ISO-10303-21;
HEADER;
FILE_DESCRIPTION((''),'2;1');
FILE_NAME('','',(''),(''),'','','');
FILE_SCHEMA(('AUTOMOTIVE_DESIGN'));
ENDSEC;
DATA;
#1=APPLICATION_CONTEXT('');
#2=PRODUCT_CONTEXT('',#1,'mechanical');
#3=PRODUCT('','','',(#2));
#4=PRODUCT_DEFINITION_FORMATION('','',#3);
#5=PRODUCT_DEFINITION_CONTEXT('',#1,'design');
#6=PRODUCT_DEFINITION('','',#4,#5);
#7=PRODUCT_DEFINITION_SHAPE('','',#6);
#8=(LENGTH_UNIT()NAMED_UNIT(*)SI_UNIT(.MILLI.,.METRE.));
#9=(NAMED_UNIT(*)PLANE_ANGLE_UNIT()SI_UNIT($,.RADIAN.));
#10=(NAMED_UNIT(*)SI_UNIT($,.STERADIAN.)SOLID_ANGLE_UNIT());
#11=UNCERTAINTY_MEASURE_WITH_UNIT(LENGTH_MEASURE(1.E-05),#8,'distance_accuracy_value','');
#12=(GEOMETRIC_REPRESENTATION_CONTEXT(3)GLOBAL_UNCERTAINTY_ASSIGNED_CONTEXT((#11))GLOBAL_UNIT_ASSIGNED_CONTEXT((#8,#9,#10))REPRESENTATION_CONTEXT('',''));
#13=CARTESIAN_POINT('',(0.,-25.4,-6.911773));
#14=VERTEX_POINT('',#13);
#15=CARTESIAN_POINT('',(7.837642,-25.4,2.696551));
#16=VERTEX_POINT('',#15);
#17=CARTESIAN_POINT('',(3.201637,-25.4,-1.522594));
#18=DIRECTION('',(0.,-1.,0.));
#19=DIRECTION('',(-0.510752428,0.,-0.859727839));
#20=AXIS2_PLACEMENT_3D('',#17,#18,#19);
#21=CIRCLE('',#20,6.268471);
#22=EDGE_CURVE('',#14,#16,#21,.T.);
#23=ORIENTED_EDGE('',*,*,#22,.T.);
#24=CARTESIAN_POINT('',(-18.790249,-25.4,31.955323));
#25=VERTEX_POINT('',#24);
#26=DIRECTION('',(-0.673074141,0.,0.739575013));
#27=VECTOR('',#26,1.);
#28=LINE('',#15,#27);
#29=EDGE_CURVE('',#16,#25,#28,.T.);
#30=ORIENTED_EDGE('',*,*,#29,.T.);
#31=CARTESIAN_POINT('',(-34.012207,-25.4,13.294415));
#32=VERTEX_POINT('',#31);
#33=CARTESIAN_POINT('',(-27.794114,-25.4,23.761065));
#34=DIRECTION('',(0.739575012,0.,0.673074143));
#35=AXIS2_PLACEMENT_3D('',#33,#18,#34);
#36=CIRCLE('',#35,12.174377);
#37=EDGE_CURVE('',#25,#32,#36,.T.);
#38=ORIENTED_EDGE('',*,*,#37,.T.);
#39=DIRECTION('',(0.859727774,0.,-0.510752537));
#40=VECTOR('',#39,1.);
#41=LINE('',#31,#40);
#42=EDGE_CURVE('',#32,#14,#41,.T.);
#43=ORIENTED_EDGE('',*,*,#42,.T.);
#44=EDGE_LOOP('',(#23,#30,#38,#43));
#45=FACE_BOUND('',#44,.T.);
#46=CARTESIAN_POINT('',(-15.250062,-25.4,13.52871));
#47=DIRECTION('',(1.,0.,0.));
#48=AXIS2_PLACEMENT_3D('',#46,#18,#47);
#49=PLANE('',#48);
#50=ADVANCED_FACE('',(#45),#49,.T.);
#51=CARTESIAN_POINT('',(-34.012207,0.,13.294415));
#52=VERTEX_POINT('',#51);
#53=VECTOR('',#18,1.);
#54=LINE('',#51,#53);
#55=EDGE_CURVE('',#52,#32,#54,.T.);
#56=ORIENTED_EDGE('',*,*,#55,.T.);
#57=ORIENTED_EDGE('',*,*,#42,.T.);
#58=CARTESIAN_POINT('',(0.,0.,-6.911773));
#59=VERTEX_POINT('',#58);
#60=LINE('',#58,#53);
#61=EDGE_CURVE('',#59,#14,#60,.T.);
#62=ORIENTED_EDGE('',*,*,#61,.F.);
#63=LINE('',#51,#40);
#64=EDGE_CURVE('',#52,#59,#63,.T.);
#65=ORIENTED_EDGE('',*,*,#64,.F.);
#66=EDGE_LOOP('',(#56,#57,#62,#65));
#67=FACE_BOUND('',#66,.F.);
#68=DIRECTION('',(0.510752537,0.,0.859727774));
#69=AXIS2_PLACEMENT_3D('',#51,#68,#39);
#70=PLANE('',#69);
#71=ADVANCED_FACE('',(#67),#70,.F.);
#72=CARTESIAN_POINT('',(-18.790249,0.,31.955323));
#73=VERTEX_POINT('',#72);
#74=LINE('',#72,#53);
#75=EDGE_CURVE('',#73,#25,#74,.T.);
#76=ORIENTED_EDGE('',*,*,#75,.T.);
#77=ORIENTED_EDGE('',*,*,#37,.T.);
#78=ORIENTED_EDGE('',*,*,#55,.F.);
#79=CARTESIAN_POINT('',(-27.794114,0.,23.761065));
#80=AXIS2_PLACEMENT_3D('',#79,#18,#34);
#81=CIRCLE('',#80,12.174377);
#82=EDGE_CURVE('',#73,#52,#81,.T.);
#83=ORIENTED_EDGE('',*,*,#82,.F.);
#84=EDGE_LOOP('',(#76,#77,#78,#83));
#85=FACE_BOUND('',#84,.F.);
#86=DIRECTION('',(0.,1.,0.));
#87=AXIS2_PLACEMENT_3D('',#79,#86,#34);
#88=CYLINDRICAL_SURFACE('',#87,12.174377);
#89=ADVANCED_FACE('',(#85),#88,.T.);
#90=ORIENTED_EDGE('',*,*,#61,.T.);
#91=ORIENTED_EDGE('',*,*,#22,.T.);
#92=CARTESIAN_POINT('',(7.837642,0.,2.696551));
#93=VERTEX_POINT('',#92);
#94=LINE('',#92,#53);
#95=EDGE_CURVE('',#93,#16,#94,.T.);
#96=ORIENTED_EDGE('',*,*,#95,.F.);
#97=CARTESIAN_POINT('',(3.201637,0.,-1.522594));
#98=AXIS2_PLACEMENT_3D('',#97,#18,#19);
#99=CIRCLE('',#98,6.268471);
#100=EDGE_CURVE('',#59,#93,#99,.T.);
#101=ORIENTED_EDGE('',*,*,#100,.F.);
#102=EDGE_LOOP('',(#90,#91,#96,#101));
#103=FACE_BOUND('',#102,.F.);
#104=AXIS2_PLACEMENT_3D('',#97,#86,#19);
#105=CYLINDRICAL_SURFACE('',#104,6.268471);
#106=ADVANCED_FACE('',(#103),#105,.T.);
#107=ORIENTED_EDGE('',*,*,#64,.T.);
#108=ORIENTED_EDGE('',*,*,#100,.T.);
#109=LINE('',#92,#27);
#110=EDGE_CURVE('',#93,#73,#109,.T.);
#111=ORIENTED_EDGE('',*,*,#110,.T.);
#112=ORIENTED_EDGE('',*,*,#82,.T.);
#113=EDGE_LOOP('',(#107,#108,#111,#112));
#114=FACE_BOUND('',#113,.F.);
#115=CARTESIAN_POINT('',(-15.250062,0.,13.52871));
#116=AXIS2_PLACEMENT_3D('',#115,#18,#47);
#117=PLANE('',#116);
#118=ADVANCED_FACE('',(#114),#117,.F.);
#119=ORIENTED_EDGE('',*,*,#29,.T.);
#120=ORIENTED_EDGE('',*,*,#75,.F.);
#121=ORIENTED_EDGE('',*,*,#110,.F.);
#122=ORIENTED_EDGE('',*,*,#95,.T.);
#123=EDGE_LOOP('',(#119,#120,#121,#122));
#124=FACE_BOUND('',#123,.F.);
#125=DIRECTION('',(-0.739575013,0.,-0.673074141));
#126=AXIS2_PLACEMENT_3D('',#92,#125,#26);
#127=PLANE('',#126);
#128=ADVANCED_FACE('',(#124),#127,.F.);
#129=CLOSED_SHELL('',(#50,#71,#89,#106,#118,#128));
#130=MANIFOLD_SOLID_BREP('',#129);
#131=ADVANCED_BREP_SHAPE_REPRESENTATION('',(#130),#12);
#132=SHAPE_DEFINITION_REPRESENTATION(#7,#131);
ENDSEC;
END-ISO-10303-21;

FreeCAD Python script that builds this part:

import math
import FreeCAD as App
import Part
import Sketcher
Q = App.Units.Quantity

doc = App.newDocument("Part")
body = doc.addObject("PartDesign::Body", "Body")

# Sketch on XZ plane
sketch1 = body.newObject("Sketcher::SketchObject", "Sketch")
sketch1.AttachmentSupport = (doc.getObject("XZ_Plane"), [""])
sketch1.MapMode = "FlatFace"
sketch1.addGeometry([
    Part.LineSegment(App.Vector(8, 3, 0), App.Vector(-19, 32, 0)),
    Part.ArcOfCircle(Part.Circle(App.Vector(-28, 24, 0), App.Vector(0, 0, 1), 12), math.radians(42), math.radians(239)),
    Part.LineSegment(App.Vector(-34, 13, 0), App.Vector(0, -7, 0)),
    Part.ArcOfCircle(Part.Circle(App.Vector(3, -2, 0), App.Vector(0, 0, 1), 6), math.radians(-121), math.radians(42)),
], False)
sketch1.addConstraint([
    Sketcher.Constraint("Tangent", 0, 2, 1, 1),
    Sketcher.Constraint("Tangent", 1, 2, 2, 1),
    Sketcher.Constraint("Tangent", 2, 2, 3, 1),
    Sketcher.Constraint("Tangent", 3, 2, 0, 1),
    Sketcher.Constraint("PointOnObject", 2, 2, -2),
    Sketcher.Constraint("Radius", 3, 6.268471),
    Sketcher.Constraint("Radius", 1, 12.174377),
    Sketcher.Constraint("Distance", 0, 39.561602),
    Sketcher.Constraint("DistanceX", 0, 2, -1, 1, 18.790249),
    Sketcher.Constraint("DistanceY", -1, 1, 3, 2, 2.696551),
])
pad1 = body.newObject("PartDesign::Pad", "Pad")
pad1.Profile = sketch1
pad1.Length = Q("1 in")

doc.recompute()
